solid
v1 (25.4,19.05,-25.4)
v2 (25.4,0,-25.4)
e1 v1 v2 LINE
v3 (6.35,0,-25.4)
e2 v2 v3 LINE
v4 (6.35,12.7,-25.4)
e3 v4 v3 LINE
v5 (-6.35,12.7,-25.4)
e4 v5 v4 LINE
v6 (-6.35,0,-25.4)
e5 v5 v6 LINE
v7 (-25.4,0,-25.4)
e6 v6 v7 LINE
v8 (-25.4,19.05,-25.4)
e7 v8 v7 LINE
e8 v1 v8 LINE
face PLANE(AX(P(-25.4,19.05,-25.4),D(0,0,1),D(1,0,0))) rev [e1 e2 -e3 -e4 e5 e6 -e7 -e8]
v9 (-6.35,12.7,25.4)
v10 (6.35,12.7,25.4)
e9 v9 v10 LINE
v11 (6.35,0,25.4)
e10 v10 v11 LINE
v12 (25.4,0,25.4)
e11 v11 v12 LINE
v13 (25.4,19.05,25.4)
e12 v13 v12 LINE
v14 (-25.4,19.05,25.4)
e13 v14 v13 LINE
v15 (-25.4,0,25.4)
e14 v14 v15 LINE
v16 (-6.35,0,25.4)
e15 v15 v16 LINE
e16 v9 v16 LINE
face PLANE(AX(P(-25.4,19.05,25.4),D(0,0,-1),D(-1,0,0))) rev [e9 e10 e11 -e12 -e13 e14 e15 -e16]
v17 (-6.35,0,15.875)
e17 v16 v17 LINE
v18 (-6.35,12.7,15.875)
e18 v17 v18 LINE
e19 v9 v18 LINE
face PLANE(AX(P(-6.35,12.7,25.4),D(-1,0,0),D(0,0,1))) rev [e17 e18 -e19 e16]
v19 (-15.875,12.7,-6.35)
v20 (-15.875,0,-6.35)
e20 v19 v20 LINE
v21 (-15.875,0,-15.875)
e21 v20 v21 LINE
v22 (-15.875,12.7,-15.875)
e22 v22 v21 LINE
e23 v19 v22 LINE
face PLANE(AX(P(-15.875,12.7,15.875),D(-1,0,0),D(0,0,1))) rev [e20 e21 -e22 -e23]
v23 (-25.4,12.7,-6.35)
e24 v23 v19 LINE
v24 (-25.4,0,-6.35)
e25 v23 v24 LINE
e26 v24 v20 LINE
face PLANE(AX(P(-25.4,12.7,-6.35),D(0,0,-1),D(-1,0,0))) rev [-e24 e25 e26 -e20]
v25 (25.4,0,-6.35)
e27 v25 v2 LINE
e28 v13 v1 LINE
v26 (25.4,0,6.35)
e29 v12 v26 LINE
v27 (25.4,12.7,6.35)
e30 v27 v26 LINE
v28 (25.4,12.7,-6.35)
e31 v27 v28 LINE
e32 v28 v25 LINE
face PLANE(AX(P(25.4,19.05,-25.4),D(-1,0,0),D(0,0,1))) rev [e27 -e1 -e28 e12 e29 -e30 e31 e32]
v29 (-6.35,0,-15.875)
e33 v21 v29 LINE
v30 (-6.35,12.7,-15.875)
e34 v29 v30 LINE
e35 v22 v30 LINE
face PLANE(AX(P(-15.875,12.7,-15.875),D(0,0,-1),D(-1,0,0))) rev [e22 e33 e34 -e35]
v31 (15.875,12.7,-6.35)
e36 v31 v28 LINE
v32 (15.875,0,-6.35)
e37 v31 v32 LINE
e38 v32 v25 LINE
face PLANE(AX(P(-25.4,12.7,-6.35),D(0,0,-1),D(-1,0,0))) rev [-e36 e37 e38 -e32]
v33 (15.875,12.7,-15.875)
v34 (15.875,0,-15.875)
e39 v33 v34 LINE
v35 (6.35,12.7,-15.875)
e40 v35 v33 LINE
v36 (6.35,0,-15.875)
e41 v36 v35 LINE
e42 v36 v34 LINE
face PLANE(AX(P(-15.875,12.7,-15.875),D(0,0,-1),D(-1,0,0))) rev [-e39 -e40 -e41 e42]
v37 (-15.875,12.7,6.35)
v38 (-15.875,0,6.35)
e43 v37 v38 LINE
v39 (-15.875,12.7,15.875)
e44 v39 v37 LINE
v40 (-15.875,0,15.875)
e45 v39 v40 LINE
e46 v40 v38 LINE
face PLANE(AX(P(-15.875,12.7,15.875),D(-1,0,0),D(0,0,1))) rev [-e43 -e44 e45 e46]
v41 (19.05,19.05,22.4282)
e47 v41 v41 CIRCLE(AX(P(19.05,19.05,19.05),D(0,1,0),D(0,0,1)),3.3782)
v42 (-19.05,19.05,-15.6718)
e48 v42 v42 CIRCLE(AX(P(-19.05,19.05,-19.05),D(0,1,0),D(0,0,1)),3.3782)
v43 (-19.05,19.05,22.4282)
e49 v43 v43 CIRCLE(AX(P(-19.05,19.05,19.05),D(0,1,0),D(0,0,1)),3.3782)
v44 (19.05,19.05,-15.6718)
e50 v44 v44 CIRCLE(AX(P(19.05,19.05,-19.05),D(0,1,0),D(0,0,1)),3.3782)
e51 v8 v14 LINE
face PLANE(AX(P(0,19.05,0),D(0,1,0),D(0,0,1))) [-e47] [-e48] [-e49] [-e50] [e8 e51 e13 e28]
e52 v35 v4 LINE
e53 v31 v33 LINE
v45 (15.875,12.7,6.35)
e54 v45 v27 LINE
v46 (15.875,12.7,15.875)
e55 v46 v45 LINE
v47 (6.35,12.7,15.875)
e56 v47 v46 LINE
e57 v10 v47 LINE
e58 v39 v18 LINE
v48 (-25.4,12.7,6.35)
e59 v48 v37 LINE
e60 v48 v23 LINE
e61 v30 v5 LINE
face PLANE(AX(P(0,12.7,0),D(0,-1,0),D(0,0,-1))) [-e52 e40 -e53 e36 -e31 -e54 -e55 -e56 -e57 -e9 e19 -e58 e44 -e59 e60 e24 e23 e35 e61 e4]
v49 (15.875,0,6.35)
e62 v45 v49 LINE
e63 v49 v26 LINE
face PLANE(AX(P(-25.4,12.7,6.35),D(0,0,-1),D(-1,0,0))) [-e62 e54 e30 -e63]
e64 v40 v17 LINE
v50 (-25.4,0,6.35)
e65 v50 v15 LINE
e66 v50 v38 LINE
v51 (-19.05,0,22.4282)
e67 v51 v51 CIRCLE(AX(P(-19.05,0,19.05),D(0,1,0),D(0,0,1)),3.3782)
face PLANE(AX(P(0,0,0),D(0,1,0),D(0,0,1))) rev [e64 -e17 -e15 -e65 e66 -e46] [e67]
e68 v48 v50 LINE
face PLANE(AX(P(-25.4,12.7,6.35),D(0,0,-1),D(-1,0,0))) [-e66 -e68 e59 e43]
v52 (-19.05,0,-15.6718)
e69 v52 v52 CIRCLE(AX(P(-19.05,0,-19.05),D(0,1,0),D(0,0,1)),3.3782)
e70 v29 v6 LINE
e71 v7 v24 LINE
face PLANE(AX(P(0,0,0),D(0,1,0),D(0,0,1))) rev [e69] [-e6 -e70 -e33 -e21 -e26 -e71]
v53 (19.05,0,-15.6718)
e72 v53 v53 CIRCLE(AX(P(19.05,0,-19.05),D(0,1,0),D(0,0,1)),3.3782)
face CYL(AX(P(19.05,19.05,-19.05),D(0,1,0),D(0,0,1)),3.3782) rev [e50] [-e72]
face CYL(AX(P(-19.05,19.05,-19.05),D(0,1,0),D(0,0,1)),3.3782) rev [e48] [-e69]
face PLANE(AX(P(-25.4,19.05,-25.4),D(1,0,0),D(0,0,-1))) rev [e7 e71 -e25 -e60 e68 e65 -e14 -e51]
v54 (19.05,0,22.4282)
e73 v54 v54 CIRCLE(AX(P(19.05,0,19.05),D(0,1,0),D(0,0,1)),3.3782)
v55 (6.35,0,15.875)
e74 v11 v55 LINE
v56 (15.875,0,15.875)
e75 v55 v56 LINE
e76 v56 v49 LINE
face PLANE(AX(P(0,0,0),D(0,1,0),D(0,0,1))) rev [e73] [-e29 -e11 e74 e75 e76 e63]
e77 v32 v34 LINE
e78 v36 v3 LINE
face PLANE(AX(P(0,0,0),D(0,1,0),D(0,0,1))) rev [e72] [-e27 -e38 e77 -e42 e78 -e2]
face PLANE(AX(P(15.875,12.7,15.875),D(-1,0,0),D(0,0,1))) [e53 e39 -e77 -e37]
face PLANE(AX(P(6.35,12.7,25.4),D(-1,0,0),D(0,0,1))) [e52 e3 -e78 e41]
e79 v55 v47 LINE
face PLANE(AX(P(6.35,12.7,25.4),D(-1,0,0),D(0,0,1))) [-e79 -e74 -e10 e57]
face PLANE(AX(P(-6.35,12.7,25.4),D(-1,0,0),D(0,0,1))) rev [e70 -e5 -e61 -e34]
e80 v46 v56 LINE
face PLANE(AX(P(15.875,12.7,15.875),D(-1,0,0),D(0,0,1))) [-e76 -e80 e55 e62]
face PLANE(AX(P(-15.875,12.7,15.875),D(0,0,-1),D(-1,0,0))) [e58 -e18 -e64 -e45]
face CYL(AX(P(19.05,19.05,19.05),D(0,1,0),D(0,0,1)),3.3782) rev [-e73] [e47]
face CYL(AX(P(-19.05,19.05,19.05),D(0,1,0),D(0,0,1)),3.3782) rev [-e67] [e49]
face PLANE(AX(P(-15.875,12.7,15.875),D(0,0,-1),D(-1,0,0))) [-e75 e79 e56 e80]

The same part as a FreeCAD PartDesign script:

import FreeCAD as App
import Part
import Sketcher
Q = App.Units.Quantity


def add_polygon(sketch, points):
    """Adds a closed chain of lines whose ends are joined by coincident constraints."""
    first, n = sketch.GeometryCount, len(points)
    for a, b in zip(points, points[1:] + points[:1]):
        sketch.addGeometry(Part.LineSegment(App.Vector(*a, 0), App.Vector(*b, 0)), False)
    for i in range(n):
        sketch.addConstraint(Sketcher.Constraint("Coincident", first + i, 2, first + (i + 1) % n, 1))

doc = App.newDocument("Part")
body = doc.addObject("PartDesign::Body", "Body")

sketch1 = body.newObject("Sketcher::SketchObject", "Sketch")
sketch1.AttachmentSupport = (doc.getObject("XZ_Plane"), [""])
sketch1.MapMode = "FlatFace"
add_polygon(sketch1, [(-25, -25), (-25, 25), (25, 25), (25, -25)])
sketch1.addConstraint([
    Sketcher.Constraint("Vertical", 0),
    Sketcher.Constraint("Horizontal", 1),
    Sketcher.Constraint("Vertical", 2),
    Sketcher.Constraint("Horizontal", 3),
    Sketcher.Constraint("Symmetric", 0, 2, 2, 2, -1, 1),
    Sketcher.Constraint("Equal", 3, 0),
    Sketcher.Constraint("DistanceX", 1, 1, 1, 2, Q("2 in")),
])
pad1 = body.newObject("PartDesign::Pad", "Pad")
pad1.Profile = sketch1
pad1.Length = Q("0.75 in")
pad1.Reversed = True

sketch2 = body.newObject("Sketcher::SketchObject", "Sketch001")
sketch2.AttachmentSupport = (doc.getObject("XZ_Plane"), [""])
sketch2.MapMode = "FlatFace"
sketch2.AttachmentOffset = App.Placement(App.Vector(0, 0, -0.75 * 25.4), App.Rotation())
sketch2.addGeometry([
    Part.Circle(App.Vector(-19.1, -19.1, 0), App.Vector(0, 0, 1), 3.4),
    Part.Circle(App.Vector(19.1, -19.1, 0), App.Vector(0, 0, 1), 3.4),
    Part.Circle(App.Vector(19.1, 19.1, 0), App.Vector(0, 0, 1), 3.4),
    Part.Circle(App.Vector(-19.1, 19.1, 0), App.Vector(0, 0, 1), 3.4),
], False)
sketch2.addConstraint([
    Sketcher.Constraint("Equal", 0, 1),
    Sketcher.Constraint("Equal", 1, 2),
    Sketcher.Constraint("Equal", 2, 3),
    Sketcher.Constraint("Symmetric", 0, 3, 2, 3, -1, 1),
    Sketcher.Constraint("Symmetric", 1, 3, 3, 3, -1, 1),
    Sketcher.Constraint("Symmetric", 0, 3, 1, 3, -2),
    Sketcher.Constraint("Diameter", 0, Q("0.266 in")),
    Sketcher.Constraint("DistanceX", 0, 3, 1, 3, Q("1.5 in")),
    Sketcher.Constraint("DistanceY", 1, 3, 2, 3, Q("1.5 in")),
])
doc.recompute()
hole = body.newObject("PartDesign::Hole", "Hole")
hole.Profile = sketch2
hole.ThreadType = "None"
hole.Diameter = Q("0.266 in")
hole.DepthType = "ThroughAll"
hole.Reversed = True

sketch3 = body.newObject("Sketcher::SketchObject", "Sketch002")
sketch3.AttachmentSupport = (doc.getObject("XZ_Plane"), [""])
sketch3.MapMode = "FlatFace"
add_polygon(sketch3, [(-6, -16), (-6, -25), (6, -25), (6, -16), (16, -16), (16, -6), (25, -6), (25, 6), (16, 6), (16, 16), (6, 16), (6, 25), (-6, 25), (-6, 16), (-16, 16), (-16, 6), (-25, 6), (-25, -6), (-16, -6), (-16, -16)])
sketch3.addConstraint([
    Sketcher.Constraint("Vertical", 0),
    Sketcher.Constraint("Horizontal", 1),
    Sketcher.Constraint("Vertical", 2),
    Sketcher.Constraint("Horizontal", 3),
    Sketcher.Constraint("Vertical", 4),
    Sketcher.Constraint("Horizontal", 5),
    Sketcher.Constraint("Vertical", 6),
    Sketcher.Constraint("Horizontal", 7),
    Sketcher.Constraint("Vertical", 8),
    Sketcher.Constraint("Horizontal", 9),
    Sketcher.Constraint("Vertical", 10),
    Sketcher.Constraint("Horizontal", 11),
    Sketcher.Constraint("Vertical", 12),
    Sketcher.Constraint("Horizontal", 13),
    Sketcher.Constraint("Vertical", 14),
    Sketcher.Constraint("Horizontal", 15),
    Sketcher.Constraint("Vertical", 16),
    Sketcher.Constraint("Horizontal", 17),
    Sketcher.Constraint("Vertical", 18),
    Sketcher.Constraint("Horizontal", 19),
    Sketcher.Constraint("Symmetric", 0, 2, 10, 2, -1, 1),
    Sketcher.Constraint("Symmetric", 2, 2, 12, 2, -1, 1),
    Sketcher.Constraint("Symmetric", 4, 2, 14, 2, -1, 1),
    Sketcher.Constraint("Symmetric", 6, 2, 16, 2, -1, 1),
    Sketcher.Constraint("Symmetric", 8, 2, 18, 2, -1, 1),
    Sketcher.Constraint("Symmetric", 9, 2, 12, 2, -2),
    Sketcher.Constraint("Symmetric", 7, 2, 14, 2, -2),
    Sketcher.Constraint("Equal", 3, 5),
    Sketcher.Constraint("Equal", 19, 0),
    Sketcher.Constraint("Equal", 2, 4),
    Sketcher.Constraint("Equal", 11, 6),
    Sketcher.Constraint("DistanceX", 1, 1, 1, 2, Q("0.5 in")),
    Sketcher.Constraint("DistanceY", 0, 2, -1, 1, Q("1 in")),
])
pocket1 = body.newObject("PartDesign::Pocket", "Pocket")
pocket1.Profile = sketch3
pocket1.Length = Q("0.5 in")

doc.recompute()
